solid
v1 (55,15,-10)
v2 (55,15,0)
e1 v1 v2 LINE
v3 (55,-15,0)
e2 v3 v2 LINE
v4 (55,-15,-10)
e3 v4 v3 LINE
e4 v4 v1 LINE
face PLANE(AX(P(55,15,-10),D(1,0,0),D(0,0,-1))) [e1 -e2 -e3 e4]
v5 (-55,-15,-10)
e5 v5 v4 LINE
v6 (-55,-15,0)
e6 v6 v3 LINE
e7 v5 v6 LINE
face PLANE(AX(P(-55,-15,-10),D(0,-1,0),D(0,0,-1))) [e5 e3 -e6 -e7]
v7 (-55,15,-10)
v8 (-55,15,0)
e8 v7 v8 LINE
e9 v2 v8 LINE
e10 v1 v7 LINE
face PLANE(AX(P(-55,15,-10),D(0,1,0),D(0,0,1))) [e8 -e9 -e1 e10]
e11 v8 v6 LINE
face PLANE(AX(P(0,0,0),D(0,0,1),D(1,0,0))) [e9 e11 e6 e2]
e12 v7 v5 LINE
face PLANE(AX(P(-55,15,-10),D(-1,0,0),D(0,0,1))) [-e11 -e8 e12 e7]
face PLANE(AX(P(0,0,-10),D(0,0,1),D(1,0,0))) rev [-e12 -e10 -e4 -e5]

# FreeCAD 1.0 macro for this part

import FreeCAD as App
import Part
import Sketcher

V = App.Vector
Q = App.Units.Quantity

doc = App.newDocument("Part")
body = doc.addObject("PartDesign::Body", "Body")

# Sketch on XY plane
sketch1 = body.newObject("Sketcher::SketchObject", "Sketch")
sketch1.AttachmentSupport = (doc.getObject("XY_Plane"), [""])
sketch1.MapMode = "FlatFace"
sketch1.addGeometry([
    Part.LineSegment(V(-55, 15, 0), V(-55, -15, 0)),
    Part.LineSegment(V(-55, -15, 0), V(55, -15, 0)),
    Part.LineSegment(V(55, -15, 0), V(55, 15, 0)),
    Part.LineSegment(V(55, 15, 0), V(-55, 15, 0)),
], False)
sketch1.addConstraint([
    Sketcher.Constraint("Coincident", 0, 2, 1, 1),
    Sketcher.Constraint("Coincident", 1, 2, 2, 1),
    Sketcher.Constraint("Coincident", 2, 2, 3, 1),
    Sketcher.Constraint("Coincident", 3, 2, 0, 1),
    Sketcher.Constraint("Vertical", 0),
    Sketcher.Constraint("Horizontal", 1),
    Sketcher.Constraint("Vertical", 2),
    Sketcher.Constraint("Horizontal", 3),
    Sketcher.Constraint("Symmetric", 0, 2, 2, 2, -1, 1),
    Sketcher.Constraint("DistanceX", 1, 1, 1, 2, Q("110 mm")),
    Sketcher.Constraint("DistanceY", 0, 2, 0, 1, Q("30 mm")),
])
pad1 = body.newObject("PartDesign::Pad", "Pad")
pad1.Profile = sketch1
pad1.Length = 10
pad1.Reversed = True

doc.recompute()
